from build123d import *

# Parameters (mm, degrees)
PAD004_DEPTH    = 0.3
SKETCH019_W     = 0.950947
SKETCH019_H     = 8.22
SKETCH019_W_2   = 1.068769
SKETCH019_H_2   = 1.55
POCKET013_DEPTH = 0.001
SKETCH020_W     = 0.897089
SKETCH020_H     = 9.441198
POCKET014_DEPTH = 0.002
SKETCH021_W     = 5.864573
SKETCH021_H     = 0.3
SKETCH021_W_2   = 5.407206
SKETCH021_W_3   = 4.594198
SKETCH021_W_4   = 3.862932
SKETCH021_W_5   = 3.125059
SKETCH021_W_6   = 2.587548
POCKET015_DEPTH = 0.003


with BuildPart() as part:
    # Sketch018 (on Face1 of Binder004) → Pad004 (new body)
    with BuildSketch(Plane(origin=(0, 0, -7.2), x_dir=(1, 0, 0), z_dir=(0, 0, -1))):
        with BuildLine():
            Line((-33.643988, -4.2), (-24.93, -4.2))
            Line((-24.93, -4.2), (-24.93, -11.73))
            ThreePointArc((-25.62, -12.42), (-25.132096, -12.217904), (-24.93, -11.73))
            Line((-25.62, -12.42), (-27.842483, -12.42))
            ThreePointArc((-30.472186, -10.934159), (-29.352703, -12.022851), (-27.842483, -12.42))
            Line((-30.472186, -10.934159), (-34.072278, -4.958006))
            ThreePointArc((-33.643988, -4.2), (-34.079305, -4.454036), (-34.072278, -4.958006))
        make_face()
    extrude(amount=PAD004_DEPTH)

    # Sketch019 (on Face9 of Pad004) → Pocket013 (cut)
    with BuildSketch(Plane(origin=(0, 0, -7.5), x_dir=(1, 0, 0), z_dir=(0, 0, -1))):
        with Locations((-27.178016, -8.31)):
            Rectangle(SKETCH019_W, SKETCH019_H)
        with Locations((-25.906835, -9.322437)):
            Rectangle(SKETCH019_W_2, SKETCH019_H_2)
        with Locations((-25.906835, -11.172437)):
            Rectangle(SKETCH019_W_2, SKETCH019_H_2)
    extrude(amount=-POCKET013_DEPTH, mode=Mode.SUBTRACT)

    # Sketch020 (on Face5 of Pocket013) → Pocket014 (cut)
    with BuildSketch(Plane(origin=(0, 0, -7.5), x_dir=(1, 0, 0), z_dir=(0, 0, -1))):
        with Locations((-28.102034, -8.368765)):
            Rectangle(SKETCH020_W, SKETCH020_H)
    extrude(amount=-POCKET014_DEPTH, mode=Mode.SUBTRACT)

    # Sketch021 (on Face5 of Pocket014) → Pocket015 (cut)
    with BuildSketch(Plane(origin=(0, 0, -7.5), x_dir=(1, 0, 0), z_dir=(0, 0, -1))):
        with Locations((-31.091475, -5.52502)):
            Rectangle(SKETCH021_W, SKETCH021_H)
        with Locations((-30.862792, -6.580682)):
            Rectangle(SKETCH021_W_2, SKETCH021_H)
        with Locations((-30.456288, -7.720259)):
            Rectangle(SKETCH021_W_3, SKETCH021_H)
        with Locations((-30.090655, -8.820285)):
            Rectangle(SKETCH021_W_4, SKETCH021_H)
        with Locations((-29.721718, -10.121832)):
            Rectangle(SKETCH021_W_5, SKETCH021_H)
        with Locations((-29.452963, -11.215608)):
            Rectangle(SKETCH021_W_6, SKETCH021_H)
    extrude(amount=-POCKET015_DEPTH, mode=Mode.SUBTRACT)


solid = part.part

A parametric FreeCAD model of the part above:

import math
import FreeCAD as App
import Part
import Sketcher


def add_polygon(sketch, points):
    """Adds a closed chain of lines whose ends are joined by coincident constraints."""
    first, n = sketch.GeometryCount, len(points)
    for a, b in zip(points, points[1:] + points[:1]):
        sketch.addGeometry(Part.LineSegment(App.Vector(*a, 0), App.Vector(*b, 0)), False)
    for i in range(n):
        sketch.addConstraint(Sketcher.Constraint("Coincident", first + i, 2, first + (i + 1) % n, 1))

doc = App.newDocument("Part")
body = doc.addObject("PartDesign::Body", "Body")

sketch1 = body.newObject("Sketcher::SketchObject", "Sketch")
sketch1.AttachmentSupport = (doc.getObject("XY_Plane"), [""])
sketch1.MapMode = "FlatFace"
sketch1.AttachmentOffset = App.Placement(App.Vector(0, 0, -7.2), App.Rotation())
sketch1.addGeometry(Part.LineSegment(App.Vector(-24.93, 4.2, 0), App.Vector(-33.643988, 4.2, 0)), False)
sketch1.addGeometry(Part.ArcOfCircle(Part.Circle(App.Vector(-33.643987, 4.7, 0), App.Vector(0, 0, 1), 0.5), math.radians(148.934923), math.radians(269.999877)), False)
sketch1.addGeometry(Part.LineSegment(App.Vector(-34.072278, 4.958006, 0), App.Vector(-30.472186, 10.934159, 0)), False)
sketch1.addGeometry(Part.ArcOfCircle(Part.Circle(App.Vector(-27.842481, 9.349998, 0), App.Vector(0, 0, 1), 3.070002), math.radians(90.000028), math.radians(148.934811)), False)
sketch1.addGeometry(Part.LineSegment(App.Vector(-27.842483, 12.42, 0), App.Vector(-25.62, 12.42, 0)), False)
sketch1.addGeometry(Part.ArcOfCircle(Part.Circle(App.Vector(-25.619999, 11.730001, 0), App.Vector(0, 0, 1), 0.689999), math.radians(-0.000091), math.radians(90.000091)), False)
sketch1.addGeometry(Part.LineSegment(App.Vector(-24.93, 11.73, 0), App.Vector(-24.93, 4.2, 0)), False)
sketch1.addConstraint(Sketcher.Constraint("Coincident", 0, 2, 1, 2))
sketch1.addConstraint(Sketcher.Constraint("Tangent", 1, 1, 2, 1))
sketch1.addConstraint(Sketcher.Constraint("Tangent", 2, 2, 3, 2))
sketch1.addConstraint(Sketcher.Constraint("Tangent", 3, 1, 4, 1))
sketch1.addConstraint(Sketcher.Constraint("Tangent", 4, 2, 5, 2))
sketch1.addConstraint(Sketcher.Constraint("Tangent", 5, 1, 6, 1))
sketch1.addConstraint(Sketcher.Constraint("Coincident", 6, 2, 0, 1))
sketch1.addConstraint(Sketcher.Constraint("Horizontal", 0))
sketch1.addConstraint(Sketcher.Constraint("Horizontal", 4))
sketch1.addConstraint(Sketcher.Constraint("Vertical", 6))
sketch1.addConstraint(Sketcher.Constraint("Vertical", 1, 3, 0, 2))
sketch1.addConstraint(Sketcher.Constraint("Radius", 1, 0.5))
sketch1.addConstraint(Sketcher.Constraint("Radius", 3, 3.070002))
sketch1.addConstraint(Sketcher.Constraint("Radius", 5, 0.689999))
sketch1.addConstraint(Sketcher.Constraint("DistanceY", 6, 2, 6, 1, 7.53))
sketch1.addConstraint(Sketcher.Constraint("DistanceY", -1, 1, 1, 3, 4.7))
sketch1.addConstraint(Sketcher.Constraint("DistanceX", 5, 3, -1, 1, 25.619999))
sketch1.addConstraint(Sketcher.Constraint("DistanceX", 1, 3, 2, 2, 3.171801))
sketch1.addConstraint(Sketcher.Constraint("DistanceX", 0, 2, 0, 1, 8.713988))
pad1 = body.newObject("PartDesign::Pad", "Pad")
pad1.Profile = sketch1
pad1.Length = 0.3
pad1.Reversed = True

sketch2 = body.newObject("Sketcher::SketchObject", "Sketch001")
sketch2.AttachmentSupport = (doc.getObject("XY_Plane"), [""])
sketch2.MapMode = "FlatFace"
sketch2.AttachmentOffset = App.Placement(App.Vector(0, 0, -7.5), App.Rotation())
add_polygon(sketch2, [(-27.653489, 4.2), (-27.653489, 12.42), (-26.702542, 12.42), (-26.702542, 4.2)])
add_polygon(sketch2, [(-26.441219, 8.547437), (-26.441219, 10.097437), (-25.37245, 10.097437), (-25.37245, 8.547437)])
add_polygon(sketch2, [(-26.441219, 10.397437), (-26.441219, 11.947437), (-25.37245, 11.947437), (-25.37245, 10.397437)])
sketch2.addConstraint(Sketcher.Constraint("Vertical", 0))
sketch2.addConstraint(Sketcher.Constraint("Horizontal", 1))
sketch2.addConstraint(Sketcher.Constraint("Vertical", 2))
sketch2.addConstraint(Sketcher.Constraint("Horizontal", 3))
sketch2.addConstraint(Sketcher.Constraint("Vertical", 4))
sketch2.addConstraint(Sketcher.Constraint("Horizontal", 5))
sketch2.addConstraint(Sketcher.Constraint("Vertical", 6))
sketch2.addConstraint(Sketcher.Constraint("Horizontal", 7))
sketch2.addConstraint(Sketcher.Constraint("Vertical", 8))
sketch2.addConstraint(Sketcher.Constraint("Horizontal", 9))
sketch2.addConstraint(Sketcher.Constraint("Vertical", 10))
sketch2.addConstraint(Sketcher.Constraint("Horizontal", 11))
sketch2.addConstraint(Sketcher.Constraint("Vertical", 7, 2, 8, 2))
sketch2.addConstraint(Sketcher.Constraint("Vertical", 6, 2, 9, 2))
sketch2.addConstraint(Sketcher.Constraint("Equal", 6, 8))
sketch2.addConstraint(Sketcher.Constraint("DistanceY", 0, 1, 0, 2, 8.22))
sketch2.addConstraint(Sketcher.Constraint("DistanceY", 4, 1, 4, 2, 1.55))
sketch2.addConstraint(Sketcher.Constraint("DistanceY", -1, 1, 2, 2, 4.2))
sketch2.addConstraint(Sketcher.Constraint("DistanceY", 7, 2, 8, 2, 3.4))
sketch2.addConstraint(Sketcher.Constraint("DistanceX", 5, 1, 5, 2, 1.068769))
sketch2.addConstraint(Sketcher.Constraint("DistanceX", 1, 1, 1, 2, 0.950947))
sketch2.addConstraint(Sketcher.Constraint("DistanceX", 0, 2, -1, 1, 27.653489))
sketch2.addConstraint(Sketcher.Constraint("DistanceX", 4, 2, -1, 1, 26.441219))
sketch2.addConstraint(Sketcher.Constraint("DistanceY", -1, 1, 4, 2, 10.097437))
pocket1 = body.newObject("PartDesign::Pocket", "Pocket")
pocket1.Profile = sketch2
pocket1.Length = 0.001
pocket1.Reversed = True

sketch3 = body.newObject("Sketcher::SketchObject", "Sketch002")
sketch3.AttachmentSupport = (doc.getObject("XY_Plane"), [""])
sketch3.MapMode = "FlatFace"
sketch3.AttachmentOffset = App.Placement(App.Vector(0, 0, -7.5), App.Rotation())
add_polygon(sketch3, [(-28.550579, 3.648166), (-28.550579, 13.089364), (-27.653489, 13.089364), (-27.653489, 3.648166)])
sketch3.addConstraint(Sketcher.Constraint("Vertical", 0))
sketch3.addConstraint(Sketcher.Constraint("Horizontal", 1))
sketch3.addConstraint(Sketcher.Constraint("Vertical", 2))
sketch3.addConstraint(Sketcher.Constraint("Horizontal", 3))
sketch3.addConstraint(Sketcher.Constraint("DistanceX", 1, 1, 1, 2, 0.897089))
sketch3.addConstraint(Sketcher.Constraint("DistanceY", 0, 1, 0, 2, 9.441198))
sketch3.addConstraint(Sketcher.Constraint("DistanceX", 0, 2, -1, 1, 28.550579))
sketch3.addConstraint(Sketcher.Constraint("DistanceY", -1, 1, 0, 2, 13.089364))
pocket2 = body.newObject("PartDesign::Pocket", "Pocket001")
pocket2.Profile = sketch3
pocket2.Length = 0.002
pocket2.Reversed = True

sketch4 = body.newObject("Sketcher::SketchObject", "Sketch003")
sketch4.AttachmentSupport = (doc.getObject("XY_Plane"), [""])
sketch4.MapMode = "FlatFace"
sketch4.AttachmentOffset = App.Placement(App.Vector(0, 0, -7.5), App.Rotation())
add_polygon(sketch4, [(-34.023761, 5.37502), (-34.023761, 5.67502), (-28.159188, 5.67502), (-28.159188, 5.37502)])
add_polygon(sketch4, [(-33.566395, 6.430682), (-33.566395, 6.730682), (-28.159189, 6.730682), (-28.159189, 6.430682)])
add_polygon(sketch4, [(-32.753387, 7.570259), (-32.753387, 7.870259), (-28.159189, 7.870259), (-28.159189, 7.570259)])
add_polygon(sketch4, [(-32.022121, 8.670285), (-32.022121, 8.970285), (-28.159189, 8.970285), (-28.159189, 8.670285)])
add_polygon(sketch4, [(-31.284247, 9.971832), (-31.284247, 10.271832), (-28.159188, 10.271832), (-28.159188, 9.971832)])
add_polygon(sketch4, [(-30.746737, 11.065608), (-30.746737, 11.365608), (-28.159189, 11.365608), (-28.159189, 11.065608)])
sketch4.addConstraint(Sketcher.Constraint("Vertical", 0))
sketch4.addConstraint(Sketcher.Constraint("Horizontal", 1))
sketch4.addConstraint(Sketcher.Constraint("Vertical", 2))
sketch4.addConstraint(Sketcher.Constraint("Horizontal", 3))
sketch4.addConstraint(Sketcher.Constraint("Vertical", 4))
sketch4.addConstraint(Sketcher.Constraint("Horizontal", 5))
sketch4.addConstraint(Sketcher.Constraint("Vertical", 6))
sketch4.addConstraint(Sketcher.Constraint("Horizontal", 7))
sketch4.addConstraint(Sketcher.Constraint("Vertical", 8))
sketch4.addConstraint(Sketcher.Constraint("Horizontal", 9))
sketch4.addConstraint(Sketcher.Constraint("Vertical", 10))
sketch4.addConstraint(Sketcher.Constraint("Horizontal", 11))
sketch4.addConstraint(Sketcher.Constraint("Vertical", 12))
sketch4.addConstraint(Sketcher.Constraint("Horizontal", 13))
sketch4.addConstraint(Sketcher.Constraint("Vertical", 14))
sketch4.addConstraint(Sketcher.Constraint("Horizontal", 15))
sketch4.addConstraint(Sketcher.Constraint("Vertical", 16))
sketch4.addConstraint(Sketcher.Constraint("Horizontal", 17))
sketch4.addConstraint(Sketcher.Constraint("Vertical", 18))
sketch4.addConstraint(Sketcher.Constraint("Horizontal", 19))
sketch4.addConstraint(Sketcher.Constraint("Vertical", 20))
sketch4.addConstraint(Sketcher.Constraint("Horizontal", 21))
sketch4.addConstraint(Sketcher.Constraint("Vertical", 22))
sketch4.addConstraint(Sketcher.Constraint("Horizontal", 23))
sketch4.addConstraint(Sketcher.Constraint("Vertical", 2, 2, 5, 2))
sketch4.addConstraint(Sketcher.Constraint("Vertical", 6, 2, 9, 2))
sketch4.addConstraint(Sketcher.Constraint("Vertical", 10, 2, 13, 2))
sketch4.addConstraint(Sketcher.Constraint("Vertical", 14, 2, 17, 2))
sketch4.addConstraint(Sketcher.Constraint("Vertical", 18, 2, 21, 2))
sketch4.addConstraint(Sketcher.Constraint("Equal", 2, 4))
sketch4.addConstraint(Sketcher.Constraint("Equal", 6, 8))
sketch4.addConstraint(Sketcher.Constraint("Equal", 10, 12))
sketch4.addConstraint(Sketcher.Constraint("Equal", 14, 16))
sketch4.addConstraint(Sketcher.Constraint("Equal", 18, 20))
sketch4.addConstraint(Sketcher.Constraint("DistanceY", 0, 1, 0, 2, 0.3))
sketch4.addConstraint(Sketcher.Constraint("DistanceX", 13, 1, 13, 2, 3.862932))
sketch4.addConstraint(Sketcher.Constraint("DistanceX", 17, 1, 17, 2, 3.125059))
sketch4.addConstraint(Sketcher.Constraint("DistanceX", 1, 1, 1, 2, 5.864573))
sketch4.addConstraint(Sketcher.Constraint("DistanceX", 5, 1, 5, 2, 5.407206))
sketch4.addConstraint(Sketcher.Constraint("DistanceX", 9, 1, 9, 2, 4.594198))
sketch4.addConstraint(Sketcher.Constraint("DistanceX", 21, 1, 21, 2, 2.587548))
sketch4.addConstraint(Sketcher.Constraint("DistanceX", 0, 2, -1, 1, 34.023761))
sketch4.addConstraint(Sketcher.Constraint("DistanceY", -1, 1, 0, 2, 5.67502))
sketch4.addConstraint(Sketcher.Constraint("DistanceY", -1, 1, 4, 2, 6.730682))
sketch4.addConstraint(Sketcher.Constraint("DistanceY", -1, 1, 8, 2, 7.870259))
sketch4.addConstraint(Sketcher.Constraint("DistanceY", -1, 1, 18, 2, 9.971832))
sketch4.addConstraint(Sketcher.Constraint("DistanceY", -1, 1, 12, 2, 8.970285))
sketch4.addConstraint(Sketcher.Constraint("DistanceY", -1, 1, 20, 2, 11.365608))
pocket3 = body.newObject("PartDesign::Pocket", "Pocket002")
pocket3.Profile = sketch4
pocket3.Length = 0.003
pocket3.Reversed = True

doc.recompute()
